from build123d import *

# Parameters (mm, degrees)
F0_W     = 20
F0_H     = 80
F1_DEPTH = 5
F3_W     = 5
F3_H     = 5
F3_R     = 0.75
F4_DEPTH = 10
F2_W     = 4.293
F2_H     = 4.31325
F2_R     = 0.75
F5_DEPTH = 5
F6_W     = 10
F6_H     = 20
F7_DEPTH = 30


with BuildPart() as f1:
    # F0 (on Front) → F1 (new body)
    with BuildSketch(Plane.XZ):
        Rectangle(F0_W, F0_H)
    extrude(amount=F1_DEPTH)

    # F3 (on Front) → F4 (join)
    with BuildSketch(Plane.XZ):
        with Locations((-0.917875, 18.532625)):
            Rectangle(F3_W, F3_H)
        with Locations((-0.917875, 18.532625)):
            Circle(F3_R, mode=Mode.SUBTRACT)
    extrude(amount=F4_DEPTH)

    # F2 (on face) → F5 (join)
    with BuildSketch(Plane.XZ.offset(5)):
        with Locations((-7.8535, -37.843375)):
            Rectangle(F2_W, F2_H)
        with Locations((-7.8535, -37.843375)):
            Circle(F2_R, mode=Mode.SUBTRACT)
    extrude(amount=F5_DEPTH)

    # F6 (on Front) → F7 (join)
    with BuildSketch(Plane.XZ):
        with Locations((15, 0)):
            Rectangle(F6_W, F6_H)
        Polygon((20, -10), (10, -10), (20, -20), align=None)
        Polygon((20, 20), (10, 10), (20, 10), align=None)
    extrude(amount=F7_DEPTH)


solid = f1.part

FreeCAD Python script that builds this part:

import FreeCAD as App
import Part
import Sketcher


def add_polygon(sketch, points):
    """Adds a closed chain of lines whose ends are joined by coincident constraints."""
    first, n = sketch.GeometryCount, len(points)
    for a, b in zip(points, points[1:] + points[:1]):
        sketch.addGeometry(Part.LineSegment(App.Vector(*a, 0), App.Vector(*b, 0)), False)
    for i in range(n):
        sketch.addConstraint(Sketcher.Constraint("Coincident", first + i, 2, first + (i + 1) % n, 1))

doc = App.newDocument("Part")
params = doc.addObject("Spreadsheet::Sheet", "Params")
for row, (alias, value) in enumerate([
    ("sketch1_width", "20 mm"),
    ("sketch1_height", "80 mm"),
    ("pad1_length", "5 mm"),
    ("sketch2_diameter", "1.5 mm"),
    ("sketch2_width", "5 mm"),
    ("pad2_length", "10 mm"),
    ("sketch3_diameter", "1.5 mm"),
    ("pad3_length", "5 mm"),
    ("sketch4_height", "20 mm"),
    ("sketch4_height2", "40 mm"),
    ("pad4_length", "30 mm"),
], start=1):
    params.set(f"A{row}", alias)
    params.set(f"B{row}", "=" + value)
    params.setAlias(f"B{row}", alias)

body = doc.addObject("PartDesign::Body", "Body")

# Sketch on XZ plane
sketch1 = doc.addObject("Sketcher::SketchObject", "Sketch")
body.addObject(sketch1)
sketch1.AttachmentSupport = (doc.XZ_Plane, [""])
sketch1.MapMode = "FlatFace"
add_polygon(sketch1, [(-10, 40), (-10, -40), (10, -40), (10, 40)])  # lines 0-3
sketch1.addConstraint(Sketcher.Constraint("Vertical", 0))
sketch1.addConstraint(Sketcher.Constraint("Horizontal", 1))
sketch1.addConstraint(Sketcher.Constraint("Vertical", 2))
sketch1.addConstraint(Sketcher.Constraint("Horizontal", 3))
sketch1.addConstraint(Sketcher.Constraint("Symmetric", 0, 2, 2, 2, -1, 1))
sketch1.addConstraint(Sketcher.Constraint("DistanceX", 1, 1, 1, 2, 20.0))
sketch1.addConstraint(Sketcher.Constraint("DistanceY", 0, 2, 0, 1, 80.0))
sketch1.setExpression("Constraints[9]", "Params.sketch1_width")
sketch1.setExpression("Constraints[10]", "Params.sketch1_height")
pad1 = doc.addObject("PartDesign::Pad", "Pad")
body.addObject(pad1)
pad1.Profile = sketch1
pad1.setExpression("Length", "Params.pad1_length")

# Sketch on XZ plane
sketch2 = doc.addObject("Sketcher::SketchObject", "Sketch001")
body.addObject(sketch2)
sketch2.AttachmentSupport = (doc.XZ_Plane, [""])
sketch2.MapMode = "FlatFace"
add_polygon(sketch2, [(-3.417875, 21.032625), (-3.417875, 16.032625), (1.582125, 16.032625), (1.582125, 21.032625)])  # lines 0-3
sketch2.addGeometry(Part.Circle(App.Vector(-0.917875, 18.532625, 0), App.Vector(0, 0, 1), 0.75), False)  # 4
sketch2.addConstraint(Sketcher.Constraint("Vertical", 0))
sketch2.addConstraint(Sketcher.Constraint("Horizontal", 1))
sketch2.addConstraint(Sketcher.Constraint("Vertical", 2))
sketch2.addConstraint(Sketcher.Constraint("Horizontal", 3))
sketch2.addConstraint(Sketcher.Constraint("Equal", 3, 0))
sketch2.addConstraint(Sketcher.Constraint("Diameter", 4, 1.5))
sketch2.addConstraint(Sketcher.Constraint("DistanceX", 1, 1, 1, 2, 5.0))
sketch2.addConstraint(Sketcher.Constraint("DistanceX", 0, 2, 4, 3, 2.5))
sketch2.addConstraint(Sketcher.Constraint("DistanceY", 0, 2, 4, 3, 2.5))
sketch2.addConstraint(Sketcher.Constraint("DistanceX", 4, 3, -1, 1, 0.917875))
sketch2.addConstraint(Sketcher.Constraint("DistanceY", -1, 1, 4, 3, 18.532625))
sketch2.setExpression("Constraints[9]", "Params.sketch2_diameter")
sketch2.setExpression("Constraints[10]", "Params.sketch2_width")
pad2 = doc.addObject("PartDesign::Pad", "Pad001")
body.addObject(pad2)
pad2.Profile = sketch2
pad2.setExpression("Length", "Params.pad2_length")

# Sketch on XZ plane
sketch3 = doc.addObject("Sketcher::SketchObject", "Sketch002")
body.addObject(sketch3)
sketch3.AttachmentSupport = (doc.XZ_Plane, [""])
sketch3.MapMode = "FlatFace"
sketch3.AttachmentOffset = App.Placement(App.Vector(0, 0, 5), App.Rotation())
add_polygon(sketch3, [(-10, -35.68675), (-10, -40), (-5.707, -40), (-5.707, -35.68675)])  # lines 0-3
sketch3.addGeometry(Part.Circle(App.Vector(-7.8535, -37.843375, 0), App.Vector(0, 0, 1), 0.75), False)  # 4
sketch3.addConstraint(Sketcher.Constraint("Vertical", 0))
sketch3.addConstraint(Sketcher.Constraint("Horizontal", 1))
sketch3.addConstraint(Sketcher.Constraint("Vertical", 2))
sketch3.addConstraint(Sketcher.Constraint("Horizontal", 3))
sketch3.addConstraint(Sketcher.Constraint("Diameter", 4, 1.5))
sketch3.addConstraint(Sketcher.Constraint("DistanceX", 0, 2, -1, 1, 10.0))
sketch3.addConstraint(Sketcher.Constraint("DistanceY", 0, 2, -1, 1, 40.0))
sketch3.addConstraint(Sketcher.Constraint("DistanceX", 1, 1, 1, 2, 4.293))
sketch3.addConstraint(Sketcher.Constraint("DistanceY", 0, 2, 0, 1, 4.31325))
sketch3.addConstraint(Sketcher.Constraint("DistanceX", 4, 3, -1, 1, 7.8535))
sketch3.addConstraint(Sketcher.Constraint("DistanceY", 4, 3, -1, 1, 37.843375))
sketch3.setExpression("Constraints[8]", "Params.sketch3_diameter")
pad3 = doc.addObject("PartDesign::Pad", "Pad002")
body.addObject(pad3)
pad3.Profile = sketch3
pad3.setExpression("Length", "Params.pad3_length")

# Sketch on XZ plane
sketch4 = doc.addObject("Sketcher::SketchObject", "Sketch003")
body.addObject(sketch4)
sketch4.AttachmentSupport = (doc.XZ_Plane, [""])
sketch4.MapMode = "FlatFace"
add_polygon(sketch4, [(10, 10), (10, -10), (20, -20), (20, 20)])  # lines 0-3
sketch4.addConstraint(Sketcher.Constraint("Vertical", 0))
sketch4.addConstraint(Sketcher.Constraint("Vertical", 2))
sketch4.addConstraint(Sketcher.Constraint("Perpendicular", 1, 3))
sketch4.addConstraint(Sketcher.Constraint("Equal", 1, 3))
sketch4.addConstraint(Sketcher.Constraint("DistanceY", 0, 2, 0, 1, 20.0))
sketch4.addConstraint(Sketcher.Constraint("DistanceY", 2, 1, 2, 2, 40.0))
sketch4.addConstraint(Sketcher.Constraint("DistanceX", -1, 1, 0, 2, 10.0))
sketch4.addConstraint(Sketcher.Constraint("DistanceY", 0, 2, -1, 1, 10.0))
sketch4.setExpression("Constraints[8]", "Params.sketch4_height")
sketch4.setExpression("Constraints[9]", "Params.sketch4_height2")
pad4 = doc.addObject("PartDesign::Pad", "Pad003")
body.addObject(pad4)
pad4.Profile = sketch4
pad4.setExpression("Length", "Params.pad4_length")

doc.recompute()
